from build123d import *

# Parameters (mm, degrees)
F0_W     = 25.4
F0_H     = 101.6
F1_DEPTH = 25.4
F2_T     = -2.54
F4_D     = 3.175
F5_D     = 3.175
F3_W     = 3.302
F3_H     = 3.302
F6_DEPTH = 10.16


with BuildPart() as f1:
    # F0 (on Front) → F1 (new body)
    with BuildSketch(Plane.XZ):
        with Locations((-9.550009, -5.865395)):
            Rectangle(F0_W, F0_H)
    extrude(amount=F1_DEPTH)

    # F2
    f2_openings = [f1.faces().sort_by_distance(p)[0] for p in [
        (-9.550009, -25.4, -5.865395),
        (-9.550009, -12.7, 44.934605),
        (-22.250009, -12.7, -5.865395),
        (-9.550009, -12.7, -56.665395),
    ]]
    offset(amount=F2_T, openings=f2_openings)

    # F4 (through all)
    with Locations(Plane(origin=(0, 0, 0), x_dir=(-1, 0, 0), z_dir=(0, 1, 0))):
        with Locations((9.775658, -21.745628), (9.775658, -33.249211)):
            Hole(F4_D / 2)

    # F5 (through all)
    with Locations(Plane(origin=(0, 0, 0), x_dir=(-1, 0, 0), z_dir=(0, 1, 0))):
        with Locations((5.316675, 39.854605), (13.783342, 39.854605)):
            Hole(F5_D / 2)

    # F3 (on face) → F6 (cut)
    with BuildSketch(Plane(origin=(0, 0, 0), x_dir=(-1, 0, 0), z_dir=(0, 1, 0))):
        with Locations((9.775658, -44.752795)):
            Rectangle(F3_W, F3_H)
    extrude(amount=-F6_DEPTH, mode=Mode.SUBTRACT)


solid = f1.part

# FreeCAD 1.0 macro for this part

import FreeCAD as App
import Part
import Sketcher

V = App.Vector
Q = App.Units.Quantity


def faces_at(feature, points):
    """Names of the faces that lie closest to the given points."""
    faces = feature.Shape.Faces
    near = lambda p: min(range(len(faces)), key=lambda i: faces[i].distToShape(Part.Vertex(*p))[0])
    return sorted({f"Face{near(p) + 1}" for p in points})

doc = App.newDocument("Part")
body = doc.addObject("PartDesign::Body", "Body")

# Sketch on XZ plane
sketch1 = body.newObject("Sketcher::SketchObject", "Sketch")
sketch1.AttachmentSupport = (doc.getObject("XZ_Plane"), [""])
sketch1.MapMode = "FlatFace"
sketch1.addGeometry([
    Part.LineSegment(V(-22, 45, 0), V(-22, -57, 0)),
    Part.LineSegment(V(-22, -57, 0), V(3, -57, 0)),
    Part.LineSegment(V(3, -57, 0), V(3, 45, 0)),
    Part.LineSegment(V(3, 45, 0), V(-22, 45, 0)),
], False)
sketch1.addConstraint([
    Sketcher.Constraint("Coincident", 0, 2, 1, 1),
    Sketcher.Constraint("Coincident", 1, 2, 2, 1),
    Sketcher.Constraint("Coincident", 2, 2, 3, 1),
    Sketcher.Constraint("Coincident", 3, 2, 0, 1),
    Sketcher.Constraint("Vertical", 0),
    Sketcher.Constraint("Horizontal", 1),
    Sketcher.Constraint("Vertical", 2),
    Sketcher.Constraint("Horizontal", 3),
    Sketcher.Constraint("DistanceX", 1, 1, 1, 2, Q("1 in")),
    Sketcher.Constraint("DistanceY", 0, 2, 0, 1, Q("4 in")),
    Sketcher.Constraint("DistanceX", 0, 2, -1, 1, 22.250009),
    Sketcher.Constraint("DistanceY", 0, 2, -1, 1, 56.665395),
])
pad1 = body.newObject("PartDesign::Pad", "Pad")
pad1.Profile = sketch1
pad1.Length = Q("1 in")
doc.recompute()

thickness = body.newObject("PartDesign::Thickness", "Thickness")
thickness.Base = (pad1, faces_at(pad1, [
    (-9.55, -25.4, -5.865),
    (-9.55, -12.7, 44.935),
    (-22.25, -12.7, -5.865),
    (-9.55, -12.7, -56.665),
]))
thickness.Value = Q("0.1 in")
thickness.Reversed = True
thickness.Join = "Arc"

# Sketch on XZ plane
sketch2 = body.newObject("Sketcher::SketchObject", "Sketch001")
sketch2.AttachmentSupport = (doc.getObject("XZ_Plane"), [""])
sketch2.MapMode = "FlatFace"
sketch2.addGeometry([
    Part.Circle(V(-9.8, -21.7, 0), V(0, 0, 1), 1.6),
    Part.Circle(V(-9.8, -33.2, 0), V(0, 0, 1), 1.6),
], False)
sketch2.addConstraint([
    Sketcher.Constraint("Equal", 0, 1),
    Sketcher.Constraint("Vertical", 0, 3, 1, 3),
    Sketcher.Constraint("Diameter", 0, Q("0.125 in")),
    Sketcher.Constraint("DistanceY", 0, 3, -1, 1, 21.745628),
    Sketcher.Constraint("DistanceY", 1, 3, -1, 1, 33.249211),
    Sketcher.Constraint("DistanceX", 0, 3, -1, 1, 9.775658),
])
doc.recompute()
hole = body.newObject("PartDesign::Hole", "Hole")
hole.Profile = sketch2
hole.ThreadType = "None"
hole.Diameter = Q("0.125 in")
hole.DepthType = "ThroughAll"
hole.Reversed = True

# Sketch on XZ plane
sketch3 = body.newObject("Sketcher::SketchObject", "Sketch002")
sketch3.AttachmentSupport = (doc.getObject("XZ_Plane"), [""])
sketch3.MapMode = "FlatFace"
sketch3.addGeometry([
    Part.Circle(V(-5.3, 39.9, 0), V(0, 0, 1), 1.6),
    Part.Circle(V(-13.8, 39.9, 0), V(0, 0, 1), 1.6),
], False)
sketch3.addConstraint([
    Sketcher.Constraint("Equal", 0, 1),
    Sketcher.Constraint("Horizontal", 0, 3, 1, 3),
    Sketcher.Constraint("Diameter", 0, Q("0.125 in")),
    Sketcher.Constraint("DistanceX", 1, 3, -1, 1, 13.783342),
    Sketcher.Constraint("DistanceX", 0, 3, -1, 1, 5.316675),
    Sketcher.Constraint("DistanceY", -1, 1, 0, 3, 39.854605),
])
doc.recompute()
hole2 = body.newObject("PartDesign::Hole", "Hole001")
hole2.Profile = sketch3
hole2.ThreadType = "None"
hole2.Diameter = Q("0.125 in")
hole2.DepthType = "ThroughAll"
hole2.Reversed = True

# Sketch on XZ plane
sketch4 = body.newObject("Sketcher::SketchObject", "Sketch003")
sketch4.AttachmentSupport = (doc.getObject("XZ_Plane"), [""])
sketch4.MapMode = "FlatFace"
sketch4.addGeometry([
    Part.LineSegment(V(-8.1, -43.1, 0), V(-8.1, -46.4, 0)),
    Part.LineSegment(V(-8.1, -46.4, 0), V(-11.4, -46.4, 0)),
    Part.LineSegment(V(-11.4, -46.4, 0), V(-11.4, -43.1, 0)),
    Part.LineSegment(V(-11.4, -43.1, 0), V(-8.1, -43.1, 0)),
], False)
sketch4.addConstraint([
    Sketcher.Constraint("Coincident", 0, 2, 1, 1),
    Sketcher.Constraint("Coincident", 1, 2, 2, 1),
    Sketcher.Constraint("Coincident", 2, 2, 3, 1),
    Sketcher.Constraint("Coincident", 3, 2, 0, 1),
    Sketcher.Constraint("Vertical", 0),
    Sketcher.Constraint("Horizontal", 1),
    Sketcher.Constraint("Vertical", 2),
    Sketcher.Constraint("Horizontal", 3),
    Sketcher.Constraint("Equal", 3, 0),
    Sketcher.Constraint("DistanceX", 1, 2, 1, 1, Q("0.13 in")),
    Sketcher.Constraint("DistanceX", 0, 2, -1, 1, 8.124658),
    Sketcher.Constraint("DistanceY", 0, 2, -1, 1, 46.403795),
])
pocket1 = body.newObject("PartDesign::Pocket", "Pocket")
pocket1.Profile = sketch4
pocket1.Length = Q("0.4 in")
pocket1.Reversed = True

doc.recompute()
